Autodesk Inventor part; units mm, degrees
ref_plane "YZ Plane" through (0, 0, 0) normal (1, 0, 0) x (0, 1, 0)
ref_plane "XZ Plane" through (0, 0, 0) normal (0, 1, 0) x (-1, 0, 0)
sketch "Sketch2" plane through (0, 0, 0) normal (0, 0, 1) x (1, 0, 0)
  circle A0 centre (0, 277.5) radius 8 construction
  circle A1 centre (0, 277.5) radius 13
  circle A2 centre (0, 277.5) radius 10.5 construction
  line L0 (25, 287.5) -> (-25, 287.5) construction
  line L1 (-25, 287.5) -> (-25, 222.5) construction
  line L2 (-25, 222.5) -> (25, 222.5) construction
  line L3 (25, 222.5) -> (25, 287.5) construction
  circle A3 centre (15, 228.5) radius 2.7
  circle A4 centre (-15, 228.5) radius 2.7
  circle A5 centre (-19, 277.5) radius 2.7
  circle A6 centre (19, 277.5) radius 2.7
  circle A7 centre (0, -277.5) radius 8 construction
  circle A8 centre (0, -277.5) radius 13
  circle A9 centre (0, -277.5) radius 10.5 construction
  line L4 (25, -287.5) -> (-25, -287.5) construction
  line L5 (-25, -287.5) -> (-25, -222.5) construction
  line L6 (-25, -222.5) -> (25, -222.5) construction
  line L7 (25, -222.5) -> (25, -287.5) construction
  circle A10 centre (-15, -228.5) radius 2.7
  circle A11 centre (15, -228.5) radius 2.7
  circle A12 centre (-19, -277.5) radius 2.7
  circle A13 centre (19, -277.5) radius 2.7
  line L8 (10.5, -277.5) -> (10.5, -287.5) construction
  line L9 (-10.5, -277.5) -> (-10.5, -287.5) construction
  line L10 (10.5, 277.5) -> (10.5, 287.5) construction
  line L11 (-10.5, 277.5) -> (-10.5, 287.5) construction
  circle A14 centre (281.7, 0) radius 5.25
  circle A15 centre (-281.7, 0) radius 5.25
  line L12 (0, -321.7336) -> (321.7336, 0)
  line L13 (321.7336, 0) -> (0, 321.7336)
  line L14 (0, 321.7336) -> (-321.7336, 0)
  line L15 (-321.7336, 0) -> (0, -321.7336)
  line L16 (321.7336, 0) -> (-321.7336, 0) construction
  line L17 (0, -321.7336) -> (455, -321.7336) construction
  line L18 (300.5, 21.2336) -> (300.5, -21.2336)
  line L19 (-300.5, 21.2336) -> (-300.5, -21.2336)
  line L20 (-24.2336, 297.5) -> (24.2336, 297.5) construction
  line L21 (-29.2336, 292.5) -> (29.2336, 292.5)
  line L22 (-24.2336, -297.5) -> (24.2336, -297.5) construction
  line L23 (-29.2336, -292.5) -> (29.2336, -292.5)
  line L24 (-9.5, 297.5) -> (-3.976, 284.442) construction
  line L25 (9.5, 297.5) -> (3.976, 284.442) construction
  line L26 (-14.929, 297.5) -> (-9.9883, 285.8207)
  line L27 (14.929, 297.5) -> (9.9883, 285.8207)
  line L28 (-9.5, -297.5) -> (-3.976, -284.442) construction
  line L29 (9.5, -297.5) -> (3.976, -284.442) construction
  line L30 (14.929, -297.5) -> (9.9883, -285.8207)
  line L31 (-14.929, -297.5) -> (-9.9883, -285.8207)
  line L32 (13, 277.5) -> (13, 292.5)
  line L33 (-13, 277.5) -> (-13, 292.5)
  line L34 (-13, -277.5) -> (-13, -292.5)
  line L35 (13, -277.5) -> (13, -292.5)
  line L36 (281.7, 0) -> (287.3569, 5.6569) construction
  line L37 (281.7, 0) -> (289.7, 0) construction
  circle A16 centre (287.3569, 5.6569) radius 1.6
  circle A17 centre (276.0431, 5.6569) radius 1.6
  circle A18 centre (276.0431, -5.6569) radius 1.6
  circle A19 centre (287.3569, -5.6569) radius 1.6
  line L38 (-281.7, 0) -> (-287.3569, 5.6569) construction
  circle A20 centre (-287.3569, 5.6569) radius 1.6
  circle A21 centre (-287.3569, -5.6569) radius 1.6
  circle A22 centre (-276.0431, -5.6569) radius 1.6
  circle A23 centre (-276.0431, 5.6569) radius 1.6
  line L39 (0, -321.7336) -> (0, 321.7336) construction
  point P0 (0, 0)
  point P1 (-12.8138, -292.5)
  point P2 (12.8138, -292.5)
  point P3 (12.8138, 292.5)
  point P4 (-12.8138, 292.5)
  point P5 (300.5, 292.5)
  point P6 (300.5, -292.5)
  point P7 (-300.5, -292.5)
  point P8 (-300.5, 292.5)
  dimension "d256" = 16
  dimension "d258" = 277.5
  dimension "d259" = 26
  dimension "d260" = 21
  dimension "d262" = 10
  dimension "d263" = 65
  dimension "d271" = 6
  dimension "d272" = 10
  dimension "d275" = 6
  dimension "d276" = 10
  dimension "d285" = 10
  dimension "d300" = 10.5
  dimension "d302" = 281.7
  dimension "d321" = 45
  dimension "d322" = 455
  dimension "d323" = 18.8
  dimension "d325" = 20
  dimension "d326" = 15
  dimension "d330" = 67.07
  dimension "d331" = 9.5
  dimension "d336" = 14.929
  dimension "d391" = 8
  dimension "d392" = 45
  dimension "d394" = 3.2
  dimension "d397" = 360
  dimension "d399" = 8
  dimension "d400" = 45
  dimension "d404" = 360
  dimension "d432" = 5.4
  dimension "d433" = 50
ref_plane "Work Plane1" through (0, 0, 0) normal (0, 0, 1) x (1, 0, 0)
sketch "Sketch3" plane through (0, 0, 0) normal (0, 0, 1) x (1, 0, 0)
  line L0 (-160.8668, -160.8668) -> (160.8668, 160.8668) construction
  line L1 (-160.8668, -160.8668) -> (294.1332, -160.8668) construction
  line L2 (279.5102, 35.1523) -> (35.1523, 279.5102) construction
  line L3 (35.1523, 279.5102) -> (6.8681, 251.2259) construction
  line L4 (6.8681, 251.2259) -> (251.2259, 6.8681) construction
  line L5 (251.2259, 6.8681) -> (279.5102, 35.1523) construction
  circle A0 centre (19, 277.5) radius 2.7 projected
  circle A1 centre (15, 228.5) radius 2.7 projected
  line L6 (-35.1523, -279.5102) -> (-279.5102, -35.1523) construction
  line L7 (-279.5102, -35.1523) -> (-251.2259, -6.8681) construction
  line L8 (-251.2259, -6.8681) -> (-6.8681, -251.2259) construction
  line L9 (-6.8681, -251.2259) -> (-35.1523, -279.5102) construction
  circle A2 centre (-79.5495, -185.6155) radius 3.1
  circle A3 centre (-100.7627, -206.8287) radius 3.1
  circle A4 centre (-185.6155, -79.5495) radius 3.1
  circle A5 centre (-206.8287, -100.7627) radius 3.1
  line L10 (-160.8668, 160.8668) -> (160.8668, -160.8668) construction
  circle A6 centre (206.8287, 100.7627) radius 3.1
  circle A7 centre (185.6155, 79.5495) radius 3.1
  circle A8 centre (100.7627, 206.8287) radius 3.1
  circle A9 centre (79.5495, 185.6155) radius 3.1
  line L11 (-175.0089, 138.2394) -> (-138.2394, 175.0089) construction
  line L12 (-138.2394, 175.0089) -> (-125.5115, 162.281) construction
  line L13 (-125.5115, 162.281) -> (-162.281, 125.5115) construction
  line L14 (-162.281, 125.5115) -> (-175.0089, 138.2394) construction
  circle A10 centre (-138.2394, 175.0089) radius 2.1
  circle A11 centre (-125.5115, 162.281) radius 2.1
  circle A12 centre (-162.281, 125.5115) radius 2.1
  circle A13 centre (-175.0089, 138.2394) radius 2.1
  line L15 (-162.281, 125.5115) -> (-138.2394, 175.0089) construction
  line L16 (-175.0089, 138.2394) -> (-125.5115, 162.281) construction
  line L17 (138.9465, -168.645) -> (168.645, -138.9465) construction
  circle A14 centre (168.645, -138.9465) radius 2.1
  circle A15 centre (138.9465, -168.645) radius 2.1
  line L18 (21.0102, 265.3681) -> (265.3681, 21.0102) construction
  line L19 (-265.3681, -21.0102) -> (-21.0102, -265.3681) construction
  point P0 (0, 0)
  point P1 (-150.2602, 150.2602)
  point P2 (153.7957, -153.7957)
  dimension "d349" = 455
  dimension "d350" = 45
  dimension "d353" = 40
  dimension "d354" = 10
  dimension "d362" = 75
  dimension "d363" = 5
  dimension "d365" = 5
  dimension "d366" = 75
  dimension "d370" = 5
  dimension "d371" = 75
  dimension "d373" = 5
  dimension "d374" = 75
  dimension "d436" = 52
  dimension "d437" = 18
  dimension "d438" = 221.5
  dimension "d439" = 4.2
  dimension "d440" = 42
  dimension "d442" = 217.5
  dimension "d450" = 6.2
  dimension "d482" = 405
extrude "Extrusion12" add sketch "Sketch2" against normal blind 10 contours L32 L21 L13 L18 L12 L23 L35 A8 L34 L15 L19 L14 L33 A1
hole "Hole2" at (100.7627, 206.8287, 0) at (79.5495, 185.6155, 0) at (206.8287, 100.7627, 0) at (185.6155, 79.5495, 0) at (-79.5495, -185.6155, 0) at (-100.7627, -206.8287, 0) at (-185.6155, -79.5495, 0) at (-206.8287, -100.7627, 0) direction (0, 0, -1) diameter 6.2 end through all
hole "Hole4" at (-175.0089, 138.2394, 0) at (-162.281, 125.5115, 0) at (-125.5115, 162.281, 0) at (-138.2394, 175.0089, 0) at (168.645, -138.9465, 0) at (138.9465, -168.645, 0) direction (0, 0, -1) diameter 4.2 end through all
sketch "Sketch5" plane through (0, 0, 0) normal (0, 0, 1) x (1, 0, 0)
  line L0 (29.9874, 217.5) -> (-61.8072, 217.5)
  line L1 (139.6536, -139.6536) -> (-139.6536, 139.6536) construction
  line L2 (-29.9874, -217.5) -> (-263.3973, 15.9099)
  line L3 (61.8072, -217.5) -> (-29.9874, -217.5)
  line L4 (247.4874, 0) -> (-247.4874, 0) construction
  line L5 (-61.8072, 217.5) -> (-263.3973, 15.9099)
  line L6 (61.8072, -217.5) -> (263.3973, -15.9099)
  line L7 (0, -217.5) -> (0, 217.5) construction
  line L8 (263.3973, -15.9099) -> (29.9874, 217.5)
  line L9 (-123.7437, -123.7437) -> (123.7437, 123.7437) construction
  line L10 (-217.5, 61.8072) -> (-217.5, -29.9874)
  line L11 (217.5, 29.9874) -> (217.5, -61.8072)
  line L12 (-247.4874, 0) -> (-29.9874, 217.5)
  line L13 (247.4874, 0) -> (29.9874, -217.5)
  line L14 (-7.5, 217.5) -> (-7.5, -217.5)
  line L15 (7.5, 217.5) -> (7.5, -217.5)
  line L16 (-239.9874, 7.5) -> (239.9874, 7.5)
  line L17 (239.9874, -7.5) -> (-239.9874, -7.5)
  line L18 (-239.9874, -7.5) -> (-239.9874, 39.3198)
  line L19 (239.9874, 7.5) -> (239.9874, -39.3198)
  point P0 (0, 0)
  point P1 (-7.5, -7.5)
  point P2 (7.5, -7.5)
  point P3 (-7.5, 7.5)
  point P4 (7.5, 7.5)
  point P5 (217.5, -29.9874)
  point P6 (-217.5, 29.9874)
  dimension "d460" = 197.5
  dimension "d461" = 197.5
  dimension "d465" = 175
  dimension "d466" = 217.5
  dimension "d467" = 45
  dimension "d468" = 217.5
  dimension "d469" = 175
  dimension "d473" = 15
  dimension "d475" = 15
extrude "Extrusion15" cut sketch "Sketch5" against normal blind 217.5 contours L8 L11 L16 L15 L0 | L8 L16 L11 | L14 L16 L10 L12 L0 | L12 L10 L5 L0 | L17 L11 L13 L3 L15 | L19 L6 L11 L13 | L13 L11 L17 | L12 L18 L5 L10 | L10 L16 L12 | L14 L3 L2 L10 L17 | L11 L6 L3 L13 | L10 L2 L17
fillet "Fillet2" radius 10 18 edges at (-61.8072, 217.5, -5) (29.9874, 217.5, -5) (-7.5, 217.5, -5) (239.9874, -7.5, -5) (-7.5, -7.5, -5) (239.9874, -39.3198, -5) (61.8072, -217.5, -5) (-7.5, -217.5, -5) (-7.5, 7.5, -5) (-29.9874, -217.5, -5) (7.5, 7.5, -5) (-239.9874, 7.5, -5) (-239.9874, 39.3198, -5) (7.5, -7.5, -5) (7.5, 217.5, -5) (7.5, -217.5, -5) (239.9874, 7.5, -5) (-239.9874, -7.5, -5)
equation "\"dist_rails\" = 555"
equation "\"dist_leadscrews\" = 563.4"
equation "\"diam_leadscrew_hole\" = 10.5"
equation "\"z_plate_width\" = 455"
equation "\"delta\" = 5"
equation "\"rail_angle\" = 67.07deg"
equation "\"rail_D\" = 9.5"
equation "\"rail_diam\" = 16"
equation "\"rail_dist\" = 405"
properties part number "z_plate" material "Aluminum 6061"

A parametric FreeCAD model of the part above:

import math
import FreeCAD as App
import Part
import Sketcher
Q = App.Units.Quantity


def edges_at(feature, points):
    """Names of the edges that pass closest to the given points."""
    edges = feature.Shape.Edges
    near = lambda p: min(range(len(edges)), key=lambda i: edges[i].distToShape(Part.Vertex(*p))[0])
    return sorted({f"Edge{near(p) + 1}" for p in points})


def add_polygon(sketch, points):
    """Adds a closed chain of lines whose ends are joined by coincident constraints."""
    first, n = sketch.GeometryCount, len(points)
    for a, b in zip(points, points[1:] + points[:1]):
        sketch.addGeometry(Part.LineSegment(App.Vector(*a, 0), App.Vector(*b, 0)), False)
    for i in range(n):
        sketch.addConstraint(Sketcher.Constraint("Coincident", first + i, 2, first + (i + 1) % n, 1))

doc = App.newDocument("Part")
body = doc.addObject("PartDesign::Body", "Body")

# Sketch on XY plane
sketch1 = body.newObject("Sketcher::SketchObject", "Sketch")
sketch1.AttachmentSupport = (doc.getObject("XY_Plane"), [""])
sketch1.MapMode = "FlatFace"
sketch1.addGeometry(Part.LineSegment(App.Vector(13, 292.5, 0), App.Vector(13, 277.5, 0)), False)
sketch1.addGeometry(Part.ArcOfCircle(Part.Circle(App.Vector(0, 277.5, 0), App.Vector(0, 0, 1), 13), math.radians(180), math.radians(360)), False)
sketch1.addGeometry(Part.LineSegment(App.Vector(-13, 277.5, 0), App.Vector(-13, 292.5, 0)), False)
sketch1.addGeometry(Part.LineSegment(App.Vector(-13, 292.5, 0), App.Vector(-29.2, 292.5, 0)), False)
sketch1.addGeometry(Part.LineSegment(App.Vector(-29.2, 292.5, 0), App.Vector(-300.5, 21.2, 0)), False)
sketch1.addGeometry(Part.LineSegment(App.Vector(-300.5, 21.2, 0), App.Vector(-300.5, -21.2, 0)), False)
sketch1.addGeometry(Part.LineSegment(App.Vector(-300.5, -21.2, 0), App.Vector(-29.2, -292.5, 0)), False)
sketch1.addGeometry(Part.LineSegment(App.Vector(-29.2, -292.5, 0), App.Vector(-13, -292.5, 0)), False)
sketch1.addGeometry(Part.LineSegment(App.Vector(-13, -292.5, 0), App.Vector(-13, -277.5, 0)), False)
sketch1.addGeometry(Part.ArcOfCircle(Part.Circle(App.Vector(0, -277.5, 0), App.Vector(0, 0, 1), 13), math.radians(0), math.radians(180)), False)
sketch1.addGeometry(Part.LineSegment(App.Vector(13, -277.5, 0), App.Vector(13, -292.5, 0)), False)
sketch1.addGeometry(Part.LineSegment(App.Vector(13, -292.5, 0), App.Vector(29.2, -292.5, 0)), False)
sketch1.addGeometry(Part.LineSegment(App.Vector(29.2, -292.5, 0), App.Vector(300.5, -21.2, 0)), False)
sketch1.addGeometry(Part.LineSegment(App.Vector(300.5, -21.2, 0), App.Vector(300.5, 21.2, 0)), False)
sketch1.addGeometry(Part.LineSegment(App.Vector(300.5, 21.2, 0), App.Vector(29.2, 292.5, 0)), False)
sketch1.addGeometry(Part.LineSegment(App.Vector(29.2, 292.5, 0), App.Vector(13, 292.5, 0)), False)
sketch1.addGeometry(Part.Circle(App.Vector(-19, -277.5, 0), App.Vector(0, 0, 1), 2.7), False)
sketch1.addGeometry(Part.Circle(App.Vector(-15, -228.5, 0), App.Vector(0, 0, 1), 2.7), False)
sketch1.addGeometry(Part.Circle(App.Vector(-287.4, -5.7, 0), App.Vector(0, 0, 1), 1.6), False)
sketch1.addGeometry(Part.Circle(App.Vector(-276, -5.7, 0), App.Vector(0, 0, 1), 1.6), False)
sketch1.addGeometry(Part.Circle(App.Vector(19, -277.5, 0), App.Vector(0, 0, 1), 2.7), False)
sketch1.addGeometry(Part.Circle(App.Vector(15, -228.5, 0), App.Vector(0, 0, 1), 2.7), False)
sketch1.addGeometry(Part.Circle(App.Vector(276, -5.7, 0), App.Vector(0, 0, 1), 1.6), False)
sketch1.addGeometry(Part.Circle(App.Vector(287.4, -5.7, 0), App.Vector(0, 0, 1), 1.6), False)
sketch1.addGeometry(Part.Circle(App.Vector(-281.7, 0, 0), App.Vector(0, 0, 1), 5.2), False)
sketch1.addGeometry(Part.Circle(App.Vector(-287.4, 5.7, 0), App.Vector(0, 0, 1), 1.6), False)
sketch1.addGeometry(Part.Circle(App.Vector(-276, 5.7, 0), App.Vector(0, 0, 1), 1.6), False)
sketch1.addGeometry(Part.Circle(App.Vector(-15, 228.5, 0), App.Vector(0, 0, 1), 2.7), False)
sketch1.addGeometry(Part.Circle(App.Vector(-19, 277.5, 0), App.Vector(0, 0, 1), 2.7), False)
sketch1.addGeometry(Part.Circle(App.Vector(276, 5.7, 0), App.Vector(0, 0, 1), 1.6), False)
sketch1.addGeometry(Part.Circle(App.Vector(281.7, 0, 0), App.Vector(0, 0, 1), 5.2), False)
sketch1.addGeometry(Part.Circle(App.Vector(287.4, 5.7, 0), App.Vector(0, 0, 1), 1.6), False)
sketch1.addGeometry(Part.Circle(App.Vector(15, 228.5, 0), App.Vector(0, 0, 1), 2.7), False)
sketch1.addGeometry(Part.Circle(App.Vector(19, 277.5, 0), App.Vector(0, 0, 1), 2.7), False)
sketch1.addConstraint(Sketcher.Constraint("Tangent", 0, 2, 1, 2))
sketch1.addConstraint(Sketcher.Constraint("Tangent", 1, 1, 2, 1))
sketch1.addConstraint(Sketcher.Constraint("Coincident", 2, 2, 3, 1))
sketch1.addConstraint(Sketcher.Constraint("Coincident", 3, 2, 4, 1))
sketch1.addConstraint(Sketcher.Constraint("Coincident", 4, 2, 5, 1))
sketch1.addConstraint(Sketcher.Constraint("Coincident", 5, 2, 6, 1))
sketch1.addConstraint(Sketcher.Constraint("Coincident", 6, 2, 7, 1))
sketch1.addConstraint(Sketcher.Constraint("Coincident", 7, 2, 8, 1))
sketch1.addConstraint(Sketcher.Constraint("Tangent", 8, 2, 9, 2))
sketch1.addConstraint(Sketcher.Constraint("Tangent", 9, 1, 10, 1))
sketch1.addConstraint(Sketcher.Constraint("Coincident", 10, 2, 11, 1))
sketch1.addConstraint(Sketcher.Constraint("Coincident", 11, 2, 12, 1))
sketch1.addConstraint(Sketcher.Constraint("Coincident", 12, 2, 13, 1))
sketch1.addConstraint(Sketcher.Constraint("Coincident", 13, 2, 14, 1))
sketch1.addConstraint(Sketcher.Constraint("Coincident", 14, 2, 15, 1))
sketch1.addConstraint(Sketcher.Constraint("Coincident", 15, 2, 0, 1))
sketch1.addConstraint(Sketcher.Constraint("Vertical", 0))
sketch1.addConstraint(Sketcher.Constraint("Vertical", 2))
sketch1.addConstraint(Sketcher.Constraint("Horizontal", 3))
sketch1.addConstraint(Sketcher.Constraint("Vertical", 5))
sketch1.addConstraint(Sketcher.Constraint("Horizontal", 7))
sketch1.addConstraint(Sketcher.Constraint("Vertical", 8))
sketch1.addConstraint(Sketcher.Constraint("Vertical", 10))
sketch1.addConstraint(Sketcher.Constraint("Horizontal", 11))
sketch1.addConstraint(Sketcher.Constraint("Vertical", 13))
sketch1.addConstraint(Sketcher.Constraint("Horizontal", 15))
sketch1.addConstraint(Sketcher.Constraint("Equal", 1, 9))
sketch1.addConstraint(Sketcher.Constraint("Equal", 16, 17))
sketch1.addConstraint(Sketcher.Constraint("Equal", 18, 19))
sketch1.addConstraint(Sketcher.Constraint("Equal", 17, 20))
sketch1.addConstraint(Sketcher.Constraint("Equal", 20, 21))
sketch1.addConstraint(Sketcher.Constraint("Equal", 19, 22))
sketch1.addConstraint(Sketcher.Constraint("Equal", 22, 23))
sketch1.addConstraint(Sketcher.Constraint("Equal", 23, 25))
sketch1.addConstraint(Sketcher.Constraint("Equal", 25, 26))
sketch1.addConstraint(Sketcher.Constraint("Equal", 21, 27))
sketch1.addConstraint(Sketcher.Constraint("Equal", 27, 28))
sketch1.addConstraint(Sketcher.Constraint("Equal", 26, 29))
sketch1.addConstraint(Sketcher.Constraint("Equal", 24, 30))
sketch1.addConstraint(Sketcher.Constraint("Equal", 29, 31))
sketch1.addConstraint(Sketcher.Constraint("Equal", 28, 32))
sketch1.addConstraint(Sketcher.Constraint("Equal", 32, 33))
sketch1.addConstraint(Sketcher.Constraint("Symmetric", 1, 3, 9, 3, -1, 1))
sketch1.addConstraint(Sketcher.Constraint("Symmetric", 23, 3, 25, 3, -1, 1))
sketch1.addConstraint(Sketcher.Constraint("Symmetric", 22, 3, 26, 3, -1, 1))
sketch1.addConstraint(Sketcher.Constraint("Symmetric", 21, 3, 27, 3, -1, 1))
sketch1.addConstraint(Sketcher.Constraint("Symmetric", 20, 3, 28, 3, -1, 1))
sketch1.addConstraint(Sketcher.Constraint("Symmetric", 19, 3, 29, 3, -1, 1))
sketch1.addConstraint(Sketcher.Constraint("Symmetric", 24, 3, 30, 3, -1, 1))
sketch1.addConstraint(Sketcher.Constraint("Symmetric", 18, 3, 31, 3, -1, 1))
sketch1.addConstraint(Sketcher.Constraint("Symmetric", 17, 3, 32, 3, -1, 1))
sketch1.addConstraint(Sketcher.Constraint("Symmetric", 16, 3, 33, 3, -1, 1))
sketch1.addConstraint(Sketcher.Constraint("Symmetric", 3, 2, 11, 2, -1, 1))
sketch1.addConstraint(Sketcher.Constraint("Symmetric", 4, 2, 12, 2, -1, 1))
sketch1.addConstraint(Sketcher.Constraint("Symmetric", 6, 2, 14, 2, -1, 1))
sketch1.addConstraint(Sketcher.Constraint("Symmetric", 16, 3, 20, 3, -2))
sketch1.addConstraint(Sketcher.Constraint("Symmetric", 17, 3, 21, 3, -2))
sketch1.addConstraint(Sketcher.Constraint("Symmetric", 19, 3, 22, 3, -2))
sketch1.addConstraint(Sketcher.Constraint("Symmetric", 18, 3, 23, 3, -2))
sketch1.addConstraint(Sketcher.Constraint("Symmetric", 7, 2, 10, 2, -2))
sketch1.addConstraint(Sketcher.Constraint("PointOnObject", 24, 3, -1))
sketch1.addConstraint(Sketcher.Constraint("Perpendicular", 4, 6))
sketch1.addConstraint(Sketcher.Constraint("Perpendicular", 12, 14))
sketch1.addConstraint(Sketcher.Constraint("Horizontal", 9, 3, 16, 3))
sketch1.addConstraint(Sketcher.Constraint("Horizontal", 18, 3, 19, 3))
sketch1.addConstraint(Sketcher.Constraint("Horizontal", 5, 2, 12, 2))
sketch1.addConstraint(Sketcher.Constraint("Vertical", 3, 2, 6, 2))
sketch1.addConstraint(Sketcher.Constraint("Radius", 1, Q("13 mm")))
sketch1.addConstraint(Sketcher.Constraint("Diameter", 16, Q("5.4 mm")))
sketch1.addConstraint(Sketcher.Constraint("Diameter", 18, Q("3.2 mm")))
sketch1.addConstraint(Sketcher.Constraint("Diameter", 24, Q("10.5 mm")))
sketch1.addConstraint(Sketcher.Constraint("DistanceY", 0, 2, 0, 1, Q("15 mm")))
sketch1.addConstraint(Sketcher.Constraint("DistanceX", 17, 3, -1, 1, Q("15 mm")))
sketch1.addConstraint(Sketcher.Constraint("DistanceX", 0, 2, 33, 3, Q("6 mm")))
sketch1.addConstraint(Sketcher.Constraint("DistanceY", -1, 1, 1, 3, Q("277.5 mm")))
sketch1.addConstraint(Sketcher.Constraint("DistanceX", 24, 3, -1, 1, Q("281.7 mm")))
sketch1.addConstraint(Sketcher.Constraint("DistanceX", 4, 2, 24, 3, Q("18.8 mm")))
sketch1.addConstraint(Sketcher.Constraint("DistanceY", 16, 3, 17, 3, Q("49 mm")))
sketch1.addConstraint(Sketcher.Constraint("DistanceX", 3, 2, 3, 1, Q("16.2336 mm")))
sketch1.addConstraint(Sketcher.Constraint("DistanceX", 18, 3, -1, 1, Q("287.357 mm")))
sketch1.addConstraint(Sketcher.Constraint("DistanceY", 18, 3, -1, 1, Q("5.657 mm")))
sketch1.addConstraint(Sketcher.Constraint("DistanceX", 19, 3, -1, 1, Q("276.043 mm")))
pad1 = body.newObject("PartDesign::Pad", "Pad")
pad1.Profile = sketch1
pad1.Length = 10
pad1.Reversed = True

# Sketch on XY plane
sketch2 = body.newObject("Sketcher::SketchObject", "Sketch001")
sketch2.AttachmentSupport = (doc.getObject("XY_Plane"), [""])
sketch2.MapMode = "FlatFace"
sketch2.addGeometry(Part.Circle(App.Vector(100.8, 206.8, 0), App.Vector(0, 0, 1), 3.1), False)
sketch2.addGeometry(Part.Circle(App.Vector(79.5, 185.6, 0), App.Vector(0, 0, 1), 3.1), False)
sketch2.addGeometry(Part.Circle(App.Vector(206.8, 100.8, 0), App.Vector(0, 0, 1), 3.1), False)
sketch2.addGeometry(Part.Circle(App.Vector(185.6, 79.5, 0), App.Vector(0, 0, 1), 3.1), False)
sketch2.addGeometry(Part.Circle(App.Vector(-79.5, -185.6, 0), App.Vector(0, 0, 1), 3.1), False)
sketch2.addGeometry(Part.Circle(App.Vector(-100.8, -206.8, 0), App.Vector(0, 0, 1), 3.1), False)
sketch2.addGeometry(Part.Circle(App.Vector(-185.6, -79.5, 0), App.Vector(0, 0, 1), 3.1), False)
sketch2.addGeometry(Part.Circle(App.Vector(-206.8, -100.8, 0), App.Vector(0, 0, 1), 3.1), False)
sketch2.addConstraint(Sketcher.Constraint("Equal", 0, 1))
sketch2.addConstraint(Sketcher.Constraint("Equal", 1, 2))
sketch2.addConstraint(Sketcher.Constraint("Equal", 2, 3))
sketch2.addConstraint(Sketcher.Constraint("Equal", 3, 4))
sketch2.addConstraint(Sketcher.Constraint("Equal", 4, 5))
sketch2.addConstraint(Sketcher.Constraint("Equal", 5, 6))
sketch2.addConstraint(Sketcher.Constraint("Equal", 6, 7))
sketch2.addConstraint(Sketcher.Constraint("Symmetric", 1, 3, 4, 3, -1, 1))
sketch2.addConstraint(Sketcher.Constraint("Symmetric", 0, 3, 5, 3, -1, 1))
sketch2.addConstraint(Sketcher.Constraint("Symmetric", 3, 3, 6, 3, -1, 1))
sketch2.addConstraint(Sketcher.Constraint("Symmetric", 2, 3, 7, 3, -1, 1))
sketch2.addConstraint(Sketcher.Constraint("Diameter", 0, Q("6.2 mm")))
sketch2.addConstraint(Sketcher.Constraint("DistanceX", 0, 3, 2, 3, Q("106.066 mm")))
sketch2.addConstraint(Sketcher.Constraint("DistanceY", 2, 3, 0, 3, Q("106.066 mm")))
sketch2.addConstraint(Sketcher.Constraint("DistanceX", 1, 3, 3, 3, Q("106.066 mm")))
sketch2.addConstraint(Sketcher.Constraint("DistanceY", 3, 3, 1, 3, Q("106.066 mm")))
sketch2.addConstraint(Sketcher.Constraint("DistanceX", 4, 3, 3, 3, Q("265.165 mm")))
sketch2.addConstraint(Sketcher.Constraint("DistanceY", 4, 3, 3, 3, Q("265.165 mm")))
sketch2.addConstraint(Sketcher.Constraint("DistanceX", -1, 1, 0, 3, Q("100.7627 mm")))
sketch2.addConstraint(Sketcher.Constraint("DistanceY", -1, 1, 0, 3, Q("206.8287 mm")))
doc.recompute()
hole = body.newObject("PartDesign::Hole", "Hole")
hole.Profile = sketch2
hole.ThreadType = "None"
hole.Diameter = 6.2
hole.DepthType = "ThroughAll"

# Sketch on XY plane
sketch3 = body.newObject("Sketcher::SketchObject", "Sketch002")
sketch3.AttachmentSupport = (doc.getObject("XY_Plane"), [""])
sketch3.MapMode = "FlatFace"
sketch3.addGeometry(Part.Circle(App.Vector(-175, 138.2, 0), App.Vector(0, 0, 1), 2.1), False)
sketch3.addGeometry(Part.Circle(App.Vector(-162.3, 125.5, 0), App.Vector(0, 0, 1), 2.1), False)
sketch3.addGeometry(Part.Circle(App.Vector(-125.5, 162.3, 0), App.Vector(0, 0, 1), 2.1), False)
sketch3.addGeometry(Part.Circle(App.Vector(-138.2, 175, 0), App.Vector(0, 0, 1), 2.1), False)
sketch3.addGeometry(Part.Circle(App.Vector(168.6, -138.9, 0), App.Vector(0, 0, 1), 2.1), False)
sketch3.addGeometry(Part.Circle(App.Vector(138.9, -168.6, 0), App.Vector(0, 0, 1), 2.1), False)
sketch3.addConstraint(Sketcher.Constraint("Equal", 0, 1))
sketch3.addConstraint(Sketcher.Constraint("Equal", 1, 2))
sketch3.addConstraint(Sketcher.Constraint("Equal", 2, 3))
sketch3.addConstraint(Sketcher.Constraint("Equal", 3, 4))
sketch3.addConstraint(Sketcher.Constraint("Equal", 4, 5))
sketch3.addConstraint(Sketcher.Constraint("Diameter", 0, Q("4.2 mm")))
sketch3.addConstraint(Sketcher.Constraint("DistanceX", 0, 3, -1, 1, Q("175.009 mm")))
sketch3.addConstraint(Sketcher.Constraint("DistanceX", 1, 3, -1, 1, Q("162.281 mm")))
sketch3.addConstraint(Sketcher.Constraint("DistanceY", -1, 1, 2, 3, Q("162.281 mm")))
sketch3.addConstraint(Sketcher.Constraint("DistanceY", -1, 1, 3, 3, Q("175.009 mm")))
sketch3.addConstraint(Sketcher.Constraint("DistanceX", -1, 1, 4, 3, Q("168.645 mm")))
sketch3.addConstraint(Sketcher.Constraint("DistanceY", 5, 3, -1, 1, Q("168.645 mm")))
sketch3.addConstraint(Sketcher.Constraint("DistanceY", 1, 3, 0, 3, Q("12.728 mm")))
sketch3.addConstraint(Sketcher.Constraint("DistanceX", 3, 3, 2, 3, Q("12.728 mm")))
sketch3.addConstraint(Sketcher.Constraint("DistanceY", 4, 3, 1, 3, Q("264.458 mm")))
sketch3.addConstraint(Sketcher.Constraint("DistanceX", 2, 3, 5, 3, Q("264.458 mm")))
sketch3.addConstraint(Sketcher.Constraint("DistanceY", -1, 1, 0, 3, Q("138.2394 mm")))
sketch3.addConstraint(Sketcher.Constraint("DistanceX", 2, 3, -1, 1, Q("125.5115 mm")))
doc.recompute()
hole2 = body.newObject("PartDesign::Hole", "Hole001")
hole2.Profile = sketch3
hole2.ThreadType = "None"
hole2.Diameter = 4.2
hole2.DepthType = "ThroughAll"

# Sketch on XY plane
sketch4 = body.newObject("Sketcher::SketchObject", "Sketch003")
sketch4.AttachmentSupport = (doc.getObject("XY_Plane"), [""])
sketch4.MapMode = "FlatFace"
add_polygon(sketch4, [(30, 218), (8, 218), (8, 8), (240, 8)])  # lines 0-3
add_polygon(sketch4, [(-8, 8), (-8, 218), (-62, 218), (-240, 39), (-240, 8)])  # lines 4-8
add_polygon(sketch4, [(8, -8), (8, -218), (62, -218), (240, -39), (240, -8)])  # lines 9-13
add_polygon(sketch4, [(-8, -218), (-8, -8), (-240, -8), (-30, -218)])  # lines 14-17
sketch4.addConstraint(Sketcher.Constraint("Horizontal", 0))
sketch4.addConstraint(Sketcher.Constraint("Vertical", 1))
sketch4.addConstraint(Sketcher.Constraint("Horizontal", 2))
sketch4.addConstraint(Sketcher.Constraint("Vertical", 4))
sketch4.addConstraint(Sketcher.Constraint("Horizontal", 5))
sketch4.addConstraint(Sketcher.Constraint("Vertical", 7))
sketch4.addConstraint(Sketcher.Constraint("Horizontal", 8))
sketch4.addConstraint(Sketcher.Constraint("Vertical", 9))
sketch4.addConstraint(Sketcher.Constraint("Horizontal", 10))
sketch4.addConstraint(Sketcher.Constraint("Vertical", 12))
sketch4.addConstraint(Sketcher.Constraint("Horizontal", 13))
sketch4.addConstraint(Sketcher.Constraint("Vertical", 14))
sketch4.addConstraint(Sketcher.Constraint("Horizontal", 15))
sketch4.addConstraint(Sketcher.Constraint("Horizontal", 17))
sketch4.addConstraint(Sketcher.Constraint("Symmetric", 4, 2, 9, 2, -1, 1))
sketch4.addConstraint(Sketcher.Constraint("Symmetric", 6, 2, 11, 2, -1, 1))
sketch4.addConstraint(Sketcher.Constraint("Symmetric", 1, 2, 14, 2, -1, 1))
sketch4.addConstraint(Sketcher.Constraint("Symmetric", 3, 2, 16, 2, -1, 1))
sketch4.addConstraint(Sketcher.Constraint("Symmetric", 0, 2, 4, 2, -2))
sketch4.addConstraint(Sketcher.Constraint("Symmetric", 2, 2, 7, 2, -2))
sketch4.addConstraint(Sketcher.Constraint("Symmetric", 12, 2, 15, 2, -2))
sketch4.addConstraint(Sketcher.Constraint("Perpendicular", 3, 6))
sketch4.addConstraint(Sketcher.Constraint("Parallel", 6, 11))
sketch4.addConstraint(Sketcher.Constraint("Angle", 11, Q("45 deg")))
sketch4.addConstraint(Sketcher.Constraint("DistanceX", 4, 2, 0, 2, Q("15 mm")))
sketch4.addConstraint(Sketcher.Constraint("DistanceY", 12, 2, 2, 2, Q("15 mm")))
sketch4.addConstraint(Sketcher.Constraint("DistanceY", -1, 1, 0, 2, Q("217.5 mm")))
sketch4.addConstraint(Sketcher.Constraint("DistanceX", 0, 2, 0, 1, Q("22.4874 mm")))
sketch4.addConstraint(Sketcher.Constraint("DistanceX", 5, 2, 5, 1, Q("54.3072 mm")))
pocket1 = body.newObject("PartDesign::Pocket", "Pocket")
pocket1.Profile = sketch4
pocket1.Length = 217.5
doc.recompute()

fillet = body.newObject("PartDesign::Fillet", "Fillet")
fillet.Base = (pocket1, edges_at(pocket1, [
    (-61.807, 217.5, -5),
    (29.987, 217.5, -5),
    (-7.5, 217.5, -5),
    (239.987, -7.5, -5),
    (-7.5, -7.5, -5),
    (239.987, -39.32, -5),
    (61.807, -217.5, -5),
    (-7.5, -217.5, -5),
    (-7.5, 7.5, -5),
    (-29.987, -217.5, -5),
    (7.5, 7.5, -5),
    (-239.987, 7.5, -5),
    (-239.987, 39.32, -5),
    (7.5, -7.5, -5),
    (7.5, 217.5, -5),
    (7.5, -217.5, -5),
    (239.987, 7.5, -5),
    (-239.987, -7.5, -5),
]))
fillet.Radius = 10

doc.recompute()
